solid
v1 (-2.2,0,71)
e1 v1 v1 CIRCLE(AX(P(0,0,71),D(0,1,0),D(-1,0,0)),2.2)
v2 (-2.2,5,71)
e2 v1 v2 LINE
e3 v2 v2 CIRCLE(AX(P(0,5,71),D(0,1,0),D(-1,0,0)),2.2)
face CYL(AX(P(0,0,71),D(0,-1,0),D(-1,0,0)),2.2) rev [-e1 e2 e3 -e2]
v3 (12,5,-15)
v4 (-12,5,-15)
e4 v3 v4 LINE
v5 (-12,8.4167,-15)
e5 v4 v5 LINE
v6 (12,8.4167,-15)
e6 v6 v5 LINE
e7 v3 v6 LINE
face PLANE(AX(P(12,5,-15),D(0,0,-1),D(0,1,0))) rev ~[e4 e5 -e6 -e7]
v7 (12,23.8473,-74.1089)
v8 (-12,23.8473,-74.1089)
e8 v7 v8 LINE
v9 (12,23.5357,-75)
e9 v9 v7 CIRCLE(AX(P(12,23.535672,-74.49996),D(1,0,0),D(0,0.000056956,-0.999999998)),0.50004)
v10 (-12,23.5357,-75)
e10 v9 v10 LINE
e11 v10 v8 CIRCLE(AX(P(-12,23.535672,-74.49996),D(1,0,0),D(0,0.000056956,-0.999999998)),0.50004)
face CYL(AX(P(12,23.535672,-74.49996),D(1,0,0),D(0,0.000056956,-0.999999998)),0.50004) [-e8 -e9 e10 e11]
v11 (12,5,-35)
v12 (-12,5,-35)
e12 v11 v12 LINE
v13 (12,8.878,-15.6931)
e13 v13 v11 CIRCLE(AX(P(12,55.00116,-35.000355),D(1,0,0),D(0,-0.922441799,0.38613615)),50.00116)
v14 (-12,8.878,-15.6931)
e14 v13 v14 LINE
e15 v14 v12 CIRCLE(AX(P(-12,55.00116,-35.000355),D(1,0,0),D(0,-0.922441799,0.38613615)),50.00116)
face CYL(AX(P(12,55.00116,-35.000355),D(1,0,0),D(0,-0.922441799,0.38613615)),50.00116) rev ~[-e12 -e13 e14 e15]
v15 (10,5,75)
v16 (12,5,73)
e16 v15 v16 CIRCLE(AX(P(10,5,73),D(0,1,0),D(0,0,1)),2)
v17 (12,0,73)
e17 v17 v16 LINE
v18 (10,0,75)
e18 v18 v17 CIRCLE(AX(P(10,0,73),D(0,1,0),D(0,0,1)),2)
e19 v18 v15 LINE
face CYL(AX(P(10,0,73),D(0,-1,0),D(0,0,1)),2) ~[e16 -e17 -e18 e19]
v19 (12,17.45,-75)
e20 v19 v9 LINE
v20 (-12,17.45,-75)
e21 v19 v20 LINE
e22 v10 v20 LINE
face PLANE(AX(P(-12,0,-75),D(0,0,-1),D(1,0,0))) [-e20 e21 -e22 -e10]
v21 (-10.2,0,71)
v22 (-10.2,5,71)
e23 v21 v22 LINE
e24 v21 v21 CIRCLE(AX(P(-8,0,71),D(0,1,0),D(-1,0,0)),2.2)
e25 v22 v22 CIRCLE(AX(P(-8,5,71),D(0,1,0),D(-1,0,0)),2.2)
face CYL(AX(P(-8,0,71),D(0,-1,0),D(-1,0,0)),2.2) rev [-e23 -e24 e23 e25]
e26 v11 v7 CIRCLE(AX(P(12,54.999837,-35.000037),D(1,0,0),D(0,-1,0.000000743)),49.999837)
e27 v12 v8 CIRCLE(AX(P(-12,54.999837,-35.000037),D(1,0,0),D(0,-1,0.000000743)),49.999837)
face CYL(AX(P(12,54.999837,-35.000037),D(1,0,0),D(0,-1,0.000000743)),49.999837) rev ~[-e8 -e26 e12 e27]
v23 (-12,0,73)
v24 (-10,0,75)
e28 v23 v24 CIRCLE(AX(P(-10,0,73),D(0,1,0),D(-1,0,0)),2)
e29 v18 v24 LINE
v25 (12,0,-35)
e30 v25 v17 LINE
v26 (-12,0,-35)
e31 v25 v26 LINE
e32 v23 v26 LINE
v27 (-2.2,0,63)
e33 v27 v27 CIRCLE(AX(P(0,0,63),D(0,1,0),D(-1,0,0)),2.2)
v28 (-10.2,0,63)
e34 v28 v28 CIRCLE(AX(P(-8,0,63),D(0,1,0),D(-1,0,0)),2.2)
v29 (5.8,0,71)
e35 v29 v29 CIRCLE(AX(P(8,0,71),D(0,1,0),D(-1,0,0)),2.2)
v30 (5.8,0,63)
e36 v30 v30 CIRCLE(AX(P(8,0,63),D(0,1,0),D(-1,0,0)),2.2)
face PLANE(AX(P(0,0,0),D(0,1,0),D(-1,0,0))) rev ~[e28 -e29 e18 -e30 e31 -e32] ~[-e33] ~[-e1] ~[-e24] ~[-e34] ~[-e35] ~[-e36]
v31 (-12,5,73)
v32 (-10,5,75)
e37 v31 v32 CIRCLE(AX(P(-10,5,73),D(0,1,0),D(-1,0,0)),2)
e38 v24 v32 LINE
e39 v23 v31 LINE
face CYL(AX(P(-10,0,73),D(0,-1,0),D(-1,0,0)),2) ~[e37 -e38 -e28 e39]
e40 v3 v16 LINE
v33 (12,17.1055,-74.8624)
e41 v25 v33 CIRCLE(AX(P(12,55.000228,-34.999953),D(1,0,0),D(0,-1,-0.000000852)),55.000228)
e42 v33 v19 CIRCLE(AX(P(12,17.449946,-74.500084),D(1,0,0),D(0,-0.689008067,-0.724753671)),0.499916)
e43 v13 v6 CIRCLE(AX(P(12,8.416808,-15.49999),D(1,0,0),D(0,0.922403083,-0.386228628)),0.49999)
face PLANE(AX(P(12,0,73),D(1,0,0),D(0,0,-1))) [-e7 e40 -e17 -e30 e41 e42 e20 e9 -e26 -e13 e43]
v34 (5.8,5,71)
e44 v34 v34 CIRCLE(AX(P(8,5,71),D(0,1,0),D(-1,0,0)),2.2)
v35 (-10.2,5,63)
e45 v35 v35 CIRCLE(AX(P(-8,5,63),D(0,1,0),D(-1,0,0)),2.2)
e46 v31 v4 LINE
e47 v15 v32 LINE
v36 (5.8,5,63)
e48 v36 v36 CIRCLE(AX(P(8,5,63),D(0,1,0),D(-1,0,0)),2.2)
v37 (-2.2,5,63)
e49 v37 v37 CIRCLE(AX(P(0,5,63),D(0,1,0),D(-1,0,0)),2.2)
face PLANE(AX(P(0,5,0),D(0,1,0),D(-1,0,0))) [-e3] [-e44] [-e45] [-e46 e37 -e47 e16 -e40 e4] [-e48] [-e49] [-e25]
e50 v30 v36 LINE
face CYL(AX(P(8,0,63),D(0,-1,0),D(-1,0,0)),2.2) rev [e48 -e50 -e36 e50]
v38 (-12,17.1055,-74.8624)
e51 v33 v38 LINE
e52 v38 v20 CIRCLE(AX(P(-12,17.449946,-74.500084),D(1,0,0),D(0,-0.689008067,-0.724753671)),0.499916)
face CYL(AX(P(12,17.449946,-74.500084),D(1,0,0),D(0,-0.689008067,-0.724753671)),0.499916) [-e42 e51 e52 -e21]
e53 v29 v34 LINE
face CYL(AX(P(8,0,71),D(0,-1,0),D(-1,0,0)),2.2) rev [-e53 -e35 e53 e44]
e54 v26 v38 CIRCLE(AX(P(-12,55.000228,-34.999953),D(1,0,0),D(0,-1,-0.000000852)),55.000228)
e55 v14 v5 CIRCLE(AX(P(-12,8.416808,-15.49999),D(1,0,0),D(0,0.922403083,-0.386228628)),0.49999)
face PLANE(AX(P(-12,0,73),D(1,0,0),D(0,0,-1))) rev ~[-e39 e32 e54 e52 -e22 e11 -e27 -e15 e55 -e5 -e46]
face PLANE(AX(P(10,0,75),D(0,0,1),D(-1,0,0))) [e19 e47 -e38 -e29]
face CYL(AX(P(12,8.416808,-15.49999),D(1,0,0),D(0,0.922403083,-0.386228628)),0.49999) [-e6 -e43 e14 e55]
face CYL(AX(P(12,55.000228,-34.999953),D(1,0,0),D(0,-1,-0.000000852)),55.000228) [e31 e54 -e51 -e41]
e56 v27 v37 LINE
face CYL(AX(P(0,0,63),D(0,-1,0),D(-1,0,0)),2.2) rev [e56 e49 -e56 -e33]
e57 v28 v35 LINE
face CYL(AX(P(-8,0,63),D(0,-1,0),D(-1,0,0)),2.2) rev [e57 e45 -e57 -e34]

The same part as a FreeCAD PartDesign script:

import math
import FreeCAD as App
import Part
import Sketcher
Q = App.Units.Quantity

doc = App.newDocument("Part")
params = doc.addObject("Spreadsheet::Sheet", "Params")
for row, (alias, value) in enumerate([
    ("sketch1_radius", "2 mm"),
    ("sketch1_diameter", "4.4 mm"),
    ("sketch1_width", "24 mm"),
    ("sketch1_height", "148 mm"),
    ("pad1_length", "5 mm"),
    ("sketch2_radius", "50 mm"),
    ("sketch2_radius2", "0.5 mm"),
    ("sketch2_height", "40 mm"),
    ("pad2_length", "24 mm"),
    ("sketch3_radius", "0.5 mm"),
    ("sketch3_radius2", "55 mm"),
    ("sketch3_height", "40 mm"),
    ("pocket1_length", "24 mm"),
    ("sketch4_radius", "0.5 mm"),
    ("sketch4_height", "20 mm"),
    ("pad3_length", "24 mm"),
], start=1):
    params.set(f"A{row}", alias)
    params.set(f"B{row}", "=" + value)
    params.setAlias(f"B{row}", alias)

body = doc.addObject("PartDesign::Body", "Body")

# Sketch on XZ plane
sketch1 = body.newObject("Sketcher::SketchObject", "Sketch")
sketch1.AttachmentSupport = (doc.getObject("XZ_Plane"), [""])
sketch1.MapMode = "FlatFace"
sketch1.addGeometry(Part.LineSegment(App.Vector(-10, 75, 0), App.Vector(10, 75, 0)), False)
sketch1.addGeometry(Part.ArcOfCircle(Part.Circle(App.Vector(10, 73, 0), App.Vector(0, 0, 1), 2), math.radians(0), math.radians(90)), False)
sketch1.addGeometry(Part.LineSegment(App.Vector(12, 73, 0), App.Vector(12, -75, 0)), False)
sketch1.addGeometry(Part.LineSegment(App.Vector(12, -75, 0), App.Vector(-12, -75, 0)), False)
sketch1.addGeometry(Part.LineSegment(App.Vector(-12, -75, 0), App.Vector(-12, 73, 0)), False)
sketch1.addGeometry(Part.ArcOfCircle(Part.Circle(App.Vector(-10, 73, 0), App.Vector(0, 0, 1), 2), math.radians(90), math.radians(180)), False)
sketch1.addGeometry(Part.Circle(App.Vector(8, 63, 0), App.Vector(0, 0, 1), 2.2), False)
sketch1.addGeometry(Part.Circle(App.Vector(8, 71, 0), App.Vector(0, 0, 1), 2.2), False)
sketch1.addGeometry(Part.Circle(App.Vector(0, 63, 0), App.Vector(0, 0, 1), 2.2), False)
sketch1.addGeometry(Part.Circle(App.Vector(0, 71, 0), App.Vector(0, 0, 1), 2.2), False)
sketch1.addGeometry(Part.Circle(App.Vector(-8, 63, 0), App.Vector(0, 0, 1), 2.2), False)
sketch1.addGeometry(Part.Circle(App.Vector(-8, 71, 0), App.Vector(0, 0, 1), 2.2), False)
sketch1.addConstraint(Sketcher.Constraint("Tangent", 0, 2, 1, 2))
sketch1.addConstraint(Sketcher.Constraint("Tangent", 1, 1, 2, 1))
sketch1.addConstraint(Sketcher.Constraint("Coincident", 2, 2, 3, 1))
sketch1.addConstraint(Sketcher.Constraint("Coincident", 3, 2, 4, 1))
sketch1.addConstraint(Sketcher.Constraint("Tangent", 4, 2, 5, 2))
sketch1.addConstraint(Sketcher.Constraint("Tangent", 5, 1, 0, 1))
sketch1.addConstraint(Sketcher.Constraint("Horizontal", 0))
sketch1.addConstraint(Sketcher.Constraint("Vertical", 2))
sketch1.addConstraint(Sketcher.Constraint("Horizontal", 3))
sketch1.addConstraint(Sketcher.Constraint("Vertical", 4))
sketch1.addConstraint(Sketcher.Constraint("Equal", 1, 5))
sketch1.addConstraint(Sketcher.Constraint("Equal", 6, 7))
sketch1.addConstraint(Sketcher.Constraint("Equal", 7, 8))
sketch1.addConstraint(Sketcher.Constraint("Equal", 8, 9))
sketch1.addConstraint(Sketcher.Constraint("Equal", 9, 10))
sketch1.addConstraint(Sketcher.Constraint("Equal", 10, 11))
sketch1.addConstraint(Sketcher.Constraint("Symmetric", 6, 3, 10, 3, -2))
sketch1.addConstraint(Sketcher.Constraint("Symmetric", 7, 3, 11, 3, -2))
sketch1.addConstraint(Sketcher.Constraint("PointOnObject", 8, 3, -2))
sketch1.addConstraint(Sketcher.Constraint("PointOnObject", 9, 3, -2))
sketch1.addConstraint(Sketcher.Constraint("Horizontal", 6, 3, 8, 3))
sketch1.addConstraint(Sketcher.Constraint("Horizontal", 7, 3, 9, 3))
sketch1.addConstraint(Sketcher.Constraint("Vertical", 6, 3, 7, 3))
sketch1.addConstraint(Sketcher.Constraint("Radius", 1, Q("2 mm")))
sketch1.addConstraint(Sketcher.Constraint("Diameter", 6, Q("4.4 mm")))
sketch1.addConstraint(Sketcher.Constraint("DistanceX", 3, 2, 3, 1, Q("24 mm")))
sketch1.addConstraint(Sketcher.Constraint("DistanceX", -1, 1, 6, 3, Q("8 mm")))
sketch1.addConstraint(Sketcher.Constraint("DistanceX", 6, 3, 1, 3, Q("2 mm")))
sketch1.addConstraint(Sketcher.Constraint("DistanceY", 7, 3, 1, 3, Q("2 mm")))
sketch1.addConstraint(Sketcher.Constraint("DistanceY", 6, 3, 7, 3, Q("8 mm")))
sketch1.addConstraint(Sketcher.Constraint("DistanceY", 2, 2, 2, 1, Q("148 mm")))
sketch1.addConstraint(Sketcher.Constraint("DistanceY", -1, 1, 1, 3, Q("73 mm")))
sketch1.setExpression("Constraints[23]", "Params.sketch1_radius")
sketch1.setExpression("Constraints[24]", "Params.sketch1_diameter")
sketch1.setExpression("Constraints[25]", "Params.sketch1_width")
sketch1.setExpression("Constraints[30]", "Params.sketch1_height")
pad1 = body.newObject("PartDesign::Pad", "Pad")
pad1.Profile = sketch1
pad1.setExpression("Length", "Params.pad1_length")
pad1.Reversed = True

# Sketch on YZ plane
sketch2 = body.newObject("Sketcher::SketchObject", "Sketch001")
sketch2.AttachmentSupport = (doc.getObject("YZ_Plane"), [""])
sketch2.MapMode = "FlatFace"
sketch2.AttachmentOffset = App.Placement(App.Vector(0, 0, 12), App.Rotation())
sketch2.addGeometry(Part.ArcOfCircle(Part.Circle(App.Vector(55, -35, 0), App.Vector(0, 0, 1), 50), math.radians(180), math.radians(231.460472)), False)
sketch2.addGeometry(Part.LineSegment(App.Vector(5, -35, 0), App.Vector(5, -75, 0)), False)
sketch2.addGeometry(Part.LineSegment(App.Vector(5, -75, 0), App.Vector(23.5357, -75, 0)), False)
sketch2.addGeometry(Part.ArcOfCircle(Part.Circle(App.Vector(23.5357, -74.5, 0), App.Vector(0, 0, 1), 0.5), math.radians(-90), math.radians(51.454715)), False)
sketch2.addConstraint(Sketcher.Constraint("Tangent", 0, 1, 1, 1))
sketch2.addConstraint(Sketcher.Constraint("Coincident", 1, 2, 2, 1))
sketch2.addConstraint(Sketcher.Constraint("Tangent", 2, 2, 3, 1))
sketch2.addConstraint(Sketcher.Constraint("Tangent", 3, 2, 0, 2))
sketch2.addConstraint(Sketcher.Constraint("Vertical", 1))
sketch2.addConstraint(Sketcher.Constraint("Horizontal", 2))
sketch2.addConstraint(Sketcher.Constraint("Radius", 0, Q("50 mm")))
sketch2.addConstraint(Sketcher.Constraint("Radius", 3, Q("0.5 mm")))
sketch2.addConstraint(Sketcher.Constraint("DistanceY", 1, 2, 1, 1, Q("40 mm")))
sketch2.addConstraint(Sketcher.Constraint("DistanceX", -1, 1, 0, 3, Q("55 mm")))
sketch2.addConstraint(Sketcher.Constraint("DistanceY", 0, 3, -1, 1, Q("35 mm")))
sketch2.setExpression("Constraints[6]", "Params.sketch2_radius")
sketch2.setExpression("Constraints[7]", "Params.sketch2_radius2")
sketch2.setExpression("Constraints[8]", "Params.sketch2_height")
pad2 = body.newObject("PartDesign::Pad", "Pad001")
pad2.Profile = sketch2
pad2.setExpression("Length", "Params.pad2_length")
pad2.Reversed = True

# Sketch on YZ plane
sketch3 = body.newObject("Sketcher::SketchObject", "Sketch002")
sketch3.AttachmentSupport = (doc.getObject("YZ_Plane"), [""])
sketch3.MapMode = "FlatFace"
sketch3.AttachmentOffset = App.Placement(App.Vector(0, 0, 12), App.Rotation())
sketch3.addGeometry(Part.ArcOfCircle(Part.Circle(App.Vector(55, -35, 0), App.Vector(0, 0, 1), 55), math.radians(180), math.radians(226.449753)), False)
sketch3.addGeometry(Part.LineSegment(App.Vector(0, -35, 0), App.Vector(0, -75, 0)), False)
sketch3.addGeometry(Part.LineSegment(App.Vector(0, -75, 0), App.Vector(17.45, -75, 0)), False)
sketch3.addGeometry(Part.ArcOfCircle(Part.Circle(App.Vector(17.45, -74.5, 0), App.Vector(0, 0, 1), 0.500014), math.radians(-133.549476), math.radians(-90)), False)
sketch3.addConstraint(Sketcher.Constraint("Tangent", 0, 1, 1, 1))
sketch3.addConstraint(Sketcher.Constraint("Coincident", 1, 2, 2, 1))
sketch3.addConstraint(Sketcher.Constraint("Tangent", 2, 2, 3, 2))
sketch3.addConstraint(Sketcher.Constraint("Tangent", 3, 1, 0, 2))
sketch3.addConstraint(Sketcher.Constraint("Vertical", 1))
sketch3.addConstraint(Sketcher.Constraint("Horizontal", 2))
sketch3.addConstraint(Sketcher.Constraint("PointOnObject", 0, 1, -2))
sketch3.addConstraint(Sketcher.Constraint("Radius", 3, Q("0.5 mm")))
sketch3.addConstraint(Sketcher.Constraint("Radius", 0, Q("55 mm")))
sketch3.addConstraint(Sketcher.Constraint("DistanceY", 1, 2, 1, 1, Q("40 mm")))
sketch3.addConstraint(Sketcher.Constraint("DistanceY", 0, 3, -1, 1, Q("35 mm")))
sketch3.setExpression("Constraints[7]", "Params.sketch3_radius")
sketch3.setExpression("Constraints[8]", "Params.sketch3_radius2")
sketch3.setExpression("Constraints[9]", "Params.sketch3_height")
pocket1 = body.newObject("PartDesign::Pocket", "Pocket")
pocket1.Profile = sketch3
pocket1.setExpression("Length", "Params.pocket1_length")

# Sketch on YZ plane
sketch4 = body.newObject("Sketcher::SketchObject", "Sketch003")
sketch4.AttachmentSupport = (doc.getObject("YZ_Plane"), [""])
sketch4.MapMode = "FlatFace"
sketch4.AttachmentOffset = App.Placement(App.Vector(0, 0, 12), App.Rotation())
sketch4.addGeometry(Part.ArcOfCircle(Part.Circle(App.Vector(55.00116, -35.000355, 0), App.Vector(0, 0, 1), 50.00116), math.radians(157.285708), math.radians(179.999593)), False)
sketch4.addGeometry(Part.ArcOfCircle(Part.Circle(App.Vector(8.4167, -15.5, 0), App.Vector(0, 0, 1), 0.500085), math.radians(-22.714167), math.radians(90)), False)
sketch4.addGeometry(Part.LineSegment(App.Vector(8.4167, -15, 0), App.Vector(5, -15, 0)), False)
sketch4.addGeometry(Part.LineSegment(App.Vector(5, -15, 0), App.Vector(5, -35, 0)), False)
sketch4.addConstraint(Sketcher.Constraint("Tangent", 0, 1, 1, 1))
sketch4.addConstraint(Sketcher.Constraint("Tangent", 1, 2, 2, 1))
sketch4.addConstraint(Sketcher.Constraint("Coincident", 2, 2, 3, 1))
sketch4.addConstraint(Sketcher.Constraint("Tangent", 3, 2, 0, 2))
sketch4.addConstraint(Sketcher.Constraint("Horizontal", 2))
sketch4.addConstraint(Sketcher.Constraint("Vertical", 3))
sketch4.addConstraint(Sketcher.Constraint("Radius", 1, Q("0.5 mm")))
sketch4.addConstraint(Sketcher.Constraint("DistanceY", 3, 2, 3, 1, Q("20 mm")))
sketch4.addConstraint(Sketcher.Constraint("DistanceY", 1, 2, -1, 1, Q("15 mm")))
sketch4.addConstraint(Sketcher.Constraint("DistanceX", -1, 1, 2, 2, Q("5 mm")))
sketch4.addConstraint(Sketcher.Constraint("Radius", 0, Q("50.0012 mm")))
sketch4.setExpression("Constraints[6]", "Params.sketch4_radius")
sketch4.setExpression("Constraints[7]", "Params.sketch4_height")
pad3 = body.newObject("PartDesign::Pad", "Pad002")
pad3.Profile = sketch4
pad3.setExpression("Length", "Params.pad3_length")
pad3.Reversed = True

doc.recompute()
